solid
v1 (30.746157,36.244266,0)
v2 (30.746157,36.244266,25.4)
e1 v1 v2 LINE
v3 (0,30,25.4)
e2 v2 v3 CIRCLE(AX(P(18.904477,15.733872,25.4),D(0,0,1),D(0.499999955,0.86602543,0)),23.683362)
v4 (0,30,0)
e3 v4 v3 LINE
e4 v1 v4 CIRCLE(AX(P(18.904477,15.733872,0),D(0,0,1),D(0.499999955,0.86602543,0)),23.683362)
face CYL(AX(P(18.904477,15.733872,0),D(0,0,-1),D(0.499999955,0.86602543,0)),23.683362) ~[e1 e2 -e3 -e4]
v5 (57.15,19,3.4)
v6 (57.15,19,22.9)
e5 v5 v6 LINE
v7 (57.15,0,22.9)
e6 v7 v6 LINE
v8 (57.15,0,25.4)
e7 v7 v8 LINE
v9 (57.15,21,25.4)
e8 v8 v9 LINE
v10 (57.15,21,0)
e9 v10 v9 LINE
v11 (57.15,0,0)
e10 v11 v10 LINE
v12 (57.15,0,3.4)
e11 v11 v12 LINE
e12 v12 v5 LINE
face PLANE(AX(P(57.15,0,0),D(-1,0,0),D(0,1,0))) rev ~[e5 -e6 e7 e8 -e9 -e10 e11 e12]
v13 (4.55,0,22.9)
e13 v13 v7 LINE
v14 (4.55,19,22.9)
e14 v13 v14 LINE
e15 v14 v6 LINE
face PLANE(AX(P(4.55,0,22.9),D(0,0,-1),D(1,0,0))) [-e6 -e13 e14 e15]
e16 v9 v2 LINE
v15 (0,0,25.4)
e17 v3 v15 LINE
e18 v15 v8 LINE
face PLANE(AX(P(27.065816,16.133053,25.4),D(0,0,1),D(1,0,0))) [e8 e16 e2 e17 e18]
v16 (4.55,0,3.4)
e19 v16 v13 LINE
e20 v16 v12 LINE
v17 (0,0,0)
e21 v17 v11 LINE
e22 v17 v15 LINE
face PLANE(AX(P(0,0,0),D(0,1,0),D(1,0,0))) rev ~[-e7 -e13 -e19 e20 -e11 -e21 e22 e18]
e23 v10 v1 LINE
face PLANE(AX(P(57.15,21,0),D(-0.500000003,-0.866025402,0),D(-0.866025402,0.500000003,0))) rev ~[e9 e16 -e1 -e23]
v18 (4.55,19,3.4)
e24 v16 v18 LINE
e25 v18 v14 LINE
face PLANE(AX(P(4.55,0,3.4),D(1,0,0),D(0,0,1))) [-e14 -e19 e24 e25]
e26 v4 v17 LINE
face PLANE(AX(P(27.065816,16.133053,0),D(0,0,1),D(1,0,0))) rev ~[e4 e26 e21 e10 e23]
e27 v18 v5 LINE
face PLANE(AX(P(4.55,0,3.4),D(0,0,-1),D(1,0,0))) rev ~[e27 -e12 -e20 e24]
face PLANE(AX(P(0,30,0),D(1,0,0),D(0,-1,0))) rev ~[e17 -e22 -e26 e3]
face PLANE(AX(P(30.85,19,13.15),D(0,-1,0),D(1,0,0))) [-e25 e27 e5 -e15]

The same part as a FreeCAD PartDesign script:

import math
import FreeCAD as App
import Part
import Sketcher
from FreeCAD import Vector
Q = App.Units.Quantity


def add_polygon(sketch, points):
    """Adds a closed chain of lines whose ends are joined by coincident constraints."""
    first, n = sketch.GeometryCount, len(points)
    for a, b in zip(points, points[1:] + points[:1]):
        sketch.addGeometry(Part.LineSegment(App.Vector(*a, 0), App.Vector(*b, 0)), False)
    for i in range(n):
        sketch.addConstraint(Sketcher.Constraint("Coincident", first + i, 2, first + (i + 1) % n, 1))

doc = App.newDocument("Part")
body = doc.addObject("PartDesign::Body", "Body")

# Sketch on XY plane
sketch1 = body.newObject("Sketcher::SketchObject", "Sketch")
sketch1.AttachmentSupport = (doc.getObject("XY_Plane"), [""])
sketch1.MapMode = "FlatFace"
sketch1.addGeometry([
    Part.LineSegment(Vector(0, 30, 0), Vector(0, 0, 0)),  # 0
    Part.LineSegment(Vector(0, 0, 0), Vector(57.15, 0, 0)),  # 1
    Part.LineSegment(Vector(57.15, 0, 0), Vector(57.15, 21, 0)),  # 2
    Part.LineSegment(Vector(57.15, 21, 0), Vector(30.746157, 36.244266, 0)),  # 3
    Part.ArcOfCircle(Part.Circle(Vector(18.904477, 15.733872, 0), Vector(0, 0, 1), 23.683362), math.radians(60.000003), math.radians(142.960232)),  # 4
], False)
sketch1.addConstraint([
    Sketcher.Constraint("Coincident", 0, 2, 1, 1),
    Sketcher.Constraint("Coincident", 1, 2, 2, 1),
    Sketcher.Constraint("Coincident", 2, 2, 3, 1),
    Sketcher.Constraint("Tangent", 3, 2, 4, 1),
    Sketcher.Constraint("Coincident", 4, 2, 0, 1),
    Sketcher.Constraint("Vertical", 0),
    Sketcher.Constraint("Horizontal", 1),
    Sketcher.Constraint("Vertical", 2),
    Sketcher.Constraint("Coincident", 0, 2, -1, 1),
    Sketcher.Constraint("DistanceY", 0, 2, 0, 1, 30.0),
    Sketcher.Constraint("DistanceY", 2, 1, 2, 2, 21.0),
    Sketcher.Constraint("Angle", 3, Q("150 deg")),
    Sketcher.Constraint("DistanceX", 1, 1, 1, 2, 57.15),
    Sketcher.Constraint("Radius", 4, 23.683362),
])
pad1 = body.newObject("PartDesign::Pad", "Pad")
pad1.Profile = sketch1
pad1.Length = 25.4

# Sketch on XZ plane
sketch2 = body.newObject("Sketcher::SketchObject", "Sketch001")
sketch2.AttachmentSupport = (doc.getObject("XZ_Plane"), [""])
sketch2.MapMode = "FlatFace"
add_polygon(sketch2, [(4.55, 22.9), (4.55, 3.4), (57.15, 3.4), (57.15, 22.9)])  # lines 0-3
sketch2.addConstraint([
    Sketcher.Constraint("Vertical", 0),
    Sketcher.Constraint("Horizontal", 1),
    Sketcher.Constraint("Vertical", 2),
    Sketcher.Constraint("Horizontal", 3),
    Sketcher.Constraint("DistanceX", 1, 1, 1, 2, 52.6),
    Sketcher.Constraint("DistanceY", 0, 2, 0, 1, 19.5),
    Sketcher.Constraint("DistanceY", -1, 1, 0, 2, 3.4),
    Sketcher.Constraint("DistanceX", -1, 1, 0, 2, 4.55),
])
pocket1 = body.newObject("PartDesign::Pocket", "Pocket")
pocket1.Profile = sketch2
pocket1.Length = 19

doc.recompute()
